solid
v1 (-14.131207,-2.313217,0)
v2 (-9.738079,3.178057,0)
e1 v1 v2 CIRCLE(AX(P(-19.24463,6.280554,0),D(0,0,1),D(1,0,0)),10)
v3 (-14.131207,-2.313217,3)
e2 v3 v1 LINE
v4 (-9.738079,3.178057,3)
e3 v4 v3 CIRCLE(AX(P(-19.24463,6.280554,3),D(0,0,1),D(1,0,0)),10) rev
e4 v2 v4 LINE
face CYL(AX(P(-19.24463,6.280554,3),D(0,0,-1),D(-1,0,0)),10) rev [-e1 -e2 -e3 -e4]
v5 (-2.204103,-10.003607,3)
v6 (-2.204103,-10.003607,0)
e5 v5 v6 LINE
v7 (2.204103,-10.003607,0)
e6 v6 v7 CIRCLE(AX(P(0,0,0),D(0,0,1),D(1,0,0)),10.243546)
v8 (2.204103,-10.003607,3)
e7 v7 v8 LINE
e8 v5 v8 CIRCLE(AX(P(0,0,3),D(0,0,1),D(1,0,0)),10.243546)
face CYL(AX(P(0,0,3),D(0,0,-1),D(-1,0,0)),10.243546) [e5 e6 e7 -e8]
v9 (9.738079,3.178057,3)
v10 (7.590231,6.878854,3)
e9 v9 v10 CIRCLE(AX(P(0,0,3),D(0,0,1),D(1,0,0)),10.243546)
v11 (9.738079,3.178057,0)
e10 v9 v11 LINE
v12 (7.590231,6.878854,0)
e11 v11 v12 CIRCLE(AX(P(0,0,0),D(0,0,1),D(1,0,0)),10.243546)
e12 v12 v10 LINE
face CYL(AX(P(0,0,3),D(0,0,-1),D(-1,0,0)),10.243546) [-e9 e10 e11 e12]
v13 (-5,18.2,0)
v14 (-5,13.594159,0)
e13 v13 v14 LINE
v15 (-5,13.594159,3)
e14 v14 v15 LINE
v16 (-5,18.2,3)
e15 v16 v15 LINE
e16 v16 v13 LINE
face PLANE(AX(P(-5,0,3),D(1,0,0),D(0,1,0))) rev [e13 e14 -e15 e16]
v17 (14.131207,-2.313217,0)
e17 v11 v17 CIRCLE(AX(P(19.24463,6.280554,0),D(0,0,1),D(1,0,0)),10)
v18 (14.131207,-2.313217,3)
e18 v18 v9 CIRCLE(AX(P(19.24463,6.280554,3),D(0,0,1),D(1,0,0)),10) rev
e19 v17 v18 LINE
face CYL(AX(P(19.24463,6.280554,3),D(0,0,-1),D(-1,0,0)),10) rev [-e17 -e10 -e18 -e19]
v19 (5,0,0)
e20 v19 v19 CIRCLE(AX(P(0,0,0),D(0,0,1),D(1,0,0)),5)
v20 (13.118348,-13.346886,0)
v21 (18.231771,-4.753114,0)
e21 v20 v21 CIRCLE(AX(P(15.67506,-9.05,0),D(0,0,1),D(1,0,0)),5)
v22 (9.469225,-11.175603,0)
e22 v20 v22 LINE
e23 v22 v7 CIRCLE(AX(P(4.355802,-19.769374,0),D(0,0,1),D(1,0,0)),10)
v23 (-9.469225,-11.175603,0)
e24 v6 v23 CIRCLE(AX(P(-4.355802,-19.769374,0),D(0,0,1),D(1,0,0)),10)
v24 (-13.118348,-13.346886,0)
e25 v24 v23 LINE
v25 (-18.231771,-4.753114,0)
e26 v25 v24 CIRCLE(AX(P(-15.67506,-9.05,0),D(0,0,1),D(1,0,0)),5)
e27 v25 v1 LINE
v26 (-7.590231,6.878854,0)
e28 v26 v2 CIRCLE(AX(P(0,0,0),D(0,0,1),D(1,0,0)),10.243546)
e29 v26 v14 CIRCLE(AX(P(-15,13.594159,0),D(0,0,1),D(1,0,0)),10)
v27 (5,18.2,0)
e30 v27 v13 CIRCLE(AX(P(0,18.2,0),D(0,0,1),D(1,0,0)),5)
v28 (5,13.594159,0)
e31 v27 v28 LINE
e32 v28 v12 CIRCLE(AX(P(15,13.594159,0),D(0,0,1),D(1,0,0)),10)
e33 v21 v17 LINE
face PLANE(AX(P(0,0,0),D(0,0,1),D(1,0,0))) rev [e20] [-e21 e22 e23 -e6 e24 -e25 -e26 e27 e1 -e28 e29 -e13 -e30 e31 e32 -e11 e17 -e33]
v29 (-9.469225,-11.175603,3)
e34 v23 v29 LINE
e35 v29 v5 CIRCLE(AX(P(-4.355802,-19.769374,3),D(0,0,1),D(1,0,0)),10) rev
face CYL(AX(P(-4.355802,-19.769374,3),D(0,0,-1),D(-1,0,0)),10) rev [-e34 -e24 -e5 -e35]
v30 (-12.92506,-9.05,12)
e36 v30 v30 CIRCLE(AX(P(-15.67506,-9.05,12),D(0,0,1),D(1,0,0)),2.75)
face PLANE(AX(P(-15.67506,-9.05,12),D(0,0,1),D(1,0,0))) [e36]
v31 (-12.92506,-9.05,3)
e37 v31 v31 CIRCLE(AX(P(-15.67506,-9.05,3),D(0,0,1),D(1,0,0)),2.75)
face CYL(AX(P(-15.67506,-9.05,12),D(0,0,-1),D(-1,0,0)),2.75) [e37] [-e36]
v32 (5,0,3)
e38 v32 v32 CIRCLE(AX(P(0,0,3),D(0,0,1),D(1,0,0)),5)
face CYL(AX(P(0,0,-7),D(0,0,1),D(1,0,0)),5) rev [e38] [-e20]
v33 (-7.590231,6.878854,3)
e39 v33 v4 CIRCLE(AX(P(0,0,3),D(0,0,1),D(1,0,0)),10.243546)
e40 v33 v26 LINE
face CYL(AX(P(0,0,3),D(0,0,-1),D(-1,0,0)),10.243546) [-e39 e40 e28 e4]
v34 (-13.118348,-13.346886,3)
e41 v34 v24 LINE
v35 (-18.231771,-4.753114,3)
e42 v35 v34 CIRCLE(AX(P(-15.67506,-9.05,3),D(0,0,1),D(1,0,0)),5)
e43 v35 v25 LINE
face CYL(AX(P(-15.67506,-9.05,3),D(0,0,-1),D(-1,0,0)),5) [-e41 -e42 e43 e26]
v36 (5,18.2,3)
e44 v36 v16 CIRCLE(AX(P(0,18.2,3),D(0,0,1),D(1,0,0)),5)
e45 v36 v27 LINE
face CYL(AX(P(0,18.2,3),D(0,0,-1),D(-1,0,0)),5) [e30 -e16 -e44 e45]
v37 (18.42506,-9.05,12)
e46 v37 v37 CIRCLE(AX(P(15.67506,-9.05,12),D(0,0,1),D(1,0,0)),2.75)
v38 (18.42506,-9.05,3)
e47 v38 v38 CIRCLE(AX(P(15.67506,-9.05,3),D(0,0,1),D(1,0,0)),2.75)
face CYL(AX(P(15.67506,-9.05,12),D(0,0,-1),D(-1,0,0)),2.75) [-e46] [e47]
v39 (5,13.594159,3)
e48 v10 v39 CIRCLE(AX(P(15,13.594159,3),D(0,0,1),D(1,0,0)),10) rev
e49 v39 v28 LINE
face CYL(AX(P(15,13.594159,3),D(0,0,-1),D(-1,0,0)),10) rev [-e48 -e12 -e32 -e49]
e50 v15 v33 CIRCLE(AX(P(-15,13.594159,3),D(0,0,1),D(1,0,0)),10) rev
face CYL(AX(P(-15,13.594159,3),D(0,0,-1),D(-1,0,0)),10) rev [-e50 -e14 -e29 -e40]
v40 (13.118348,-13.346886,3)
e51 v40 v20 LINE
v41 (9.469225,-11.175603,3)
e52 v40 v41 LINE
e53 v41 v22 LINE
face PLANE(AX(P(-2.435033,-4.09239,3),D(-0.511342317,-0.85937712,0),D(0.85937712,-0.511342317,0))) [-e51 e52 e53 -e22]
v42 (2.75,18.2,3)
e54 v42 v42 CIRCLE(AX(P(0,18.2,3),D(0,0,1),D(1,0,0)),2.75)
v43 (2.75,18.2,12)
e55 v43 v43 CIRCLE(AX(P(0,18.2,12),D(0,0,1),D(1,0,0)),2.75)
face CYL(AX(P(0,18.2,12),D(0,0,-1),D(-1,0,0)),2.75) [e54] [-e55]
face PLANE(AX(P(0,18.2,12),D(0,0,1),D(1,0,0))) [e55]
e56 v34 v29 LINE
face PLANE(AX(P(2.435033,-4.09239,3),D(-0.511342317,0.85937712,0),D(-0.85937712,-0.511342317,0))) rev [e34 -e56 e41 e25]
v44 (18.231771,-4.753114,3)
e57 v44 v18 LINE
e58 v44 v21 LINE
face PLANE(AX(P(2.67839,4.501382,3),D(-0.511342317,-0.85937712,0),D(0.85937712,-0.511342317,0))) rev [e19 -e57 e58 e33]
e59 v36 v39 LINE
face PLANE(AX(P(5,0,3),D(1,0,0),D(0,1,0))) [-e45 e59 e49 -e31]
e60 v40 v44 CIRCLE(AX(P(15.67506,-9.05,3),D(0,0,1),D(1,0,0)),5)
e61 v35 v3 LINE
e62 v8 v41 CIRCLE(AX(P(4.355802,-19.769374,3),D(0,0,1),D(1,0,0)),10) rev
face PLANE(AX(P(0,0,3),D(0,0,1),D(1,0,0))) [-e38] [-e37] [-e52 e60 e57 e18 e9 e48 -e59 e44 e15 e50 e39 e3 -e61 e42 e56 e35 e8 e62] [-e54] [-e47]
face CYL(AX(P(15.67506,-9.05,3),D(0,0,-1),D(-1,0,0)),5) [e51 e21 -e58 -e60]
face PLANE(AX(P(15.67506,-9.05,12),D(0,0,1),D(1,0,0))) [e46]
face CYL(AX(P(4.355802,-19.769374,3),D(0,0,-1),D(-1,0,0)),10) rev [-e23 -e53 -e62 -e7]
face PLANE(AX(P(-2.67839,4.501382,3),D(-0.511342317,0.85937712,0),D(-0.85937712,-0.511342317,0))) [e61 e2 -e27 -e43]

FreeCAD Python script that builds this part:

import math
import FreeCAD as App
import Part
import Sketcher
from FreeCAD import Vector


def edges_at(feature, points):
    """Names of the edges that pass closest to the given points."""
    edges = feature.Shape.Edges
    near = lambda p: min(range(len(edges)), key=lambda i: edges[i].distToShape(Part.Vertex(*p))[0])
    return sorted({f"Edge{near(p) + 1}" for p in points})

doc = App.newDocument("Part")
params = doc.addObject("Spreadsheet::Sheet", "Params")
for row, (alias, value) in enumerate([
    ("sketch1_radius", "5 mm"),
    ("pad1_length", "3 mm"),
    ("sketch2_diameter", "10 mm"),
    ("pocket1_length", "10 mm"),
    ("fillet_radius", "10 mm"),
    ("sketch3_diameter", "5.5 mm"),
    ("pad2_length", "9 mm"),
], start=1):
    params.set(f"A{row}", alias)
    params.set(f"B{row}", "=" + value)
    params.setAlias(f"B{row}", alias)

body = doc.addObject("PartDesign::Body", "Body")

# Sketch on XY plane
sketch1 = doc.addObject("Sketcher::SketchObject", "Sketch")
body.addObject(sketch1)
sketch1.AttachmentSupport = (doc.XY_Plane, [""])
sketch1.MapMode = "FlatFace"
sketch1.addGeometry([
    Part.LineSegment(Vector(-13.118348, -13.346886, 0), Vector(-5.358962, -8.729934, 0)),  # 0
    Part.ArcOfCircle(Part.Circle(Vector(0, 0, 0), Vector(0, 0, 1), 10.243546), math.radians(-121.544123), math.radians(-58.455877)),  # 1
    Part.LineSegment(Vector(5.358962, -8.729934, 0), Vector(13.118348, -13.346886, 0)),  # 2
    Part.ArcOfCircle(Part.Circle(Vector(15.67506, -9.05, 0), Vector(0, 0, 1), 5), math.radians(-120.753282), math.radians(59.246718)),  # 3
    Part.LineSegment(Vector(18.231771, -4.753114, 0), Vector(10.243546, 0, 0)),  # 4
    Part.ArcOfCircle(Part.Circle(Vector(0, 0, 0), Vector(0, 0, 1), 10.243546), math.radians(0), math.radians(60.783421)),  # 5
    Part.LineSegment(Vector(5, 8.940371, 0), Vector(5, 18.2, 0)),  # 6
    Part.ArcOfCircle(Part.Circle(Vector(0, 18.2, 0), Vector(0, 0, 1), 5), math.radians(0), math.radians(180)),  # 7
    Part.LineSegment(Vector(-5, 18.2, 0), Vector(-5, 8.940371, 0)),  # 8
    Part.ArcOfCircle(Part.Circle(Vector(0, 0, 0), Vector(0, 0, 1), 10.243546), math.radians(119.216579), math.radians(180)),  # 9
    Part.LineSegment(Vector(-10.243546, 0, 0), Vector(-18.231771, -4.753114, 0)),  # 10
    Part.ArcOfCircle(Part.Circle(Vector(-15.67506, -9.05, 0), Vector(0, 0, 1), 5), math.radians(120.753282), math.radians(300.753282)),  # 11
], False)
sketch1.addConstraint([
    Sketcher.Constraint("Coincident", 0, 2, 1, 1),
    Sketcher.Constraint("Coincident", 1, 2, 2, 1),
    Sketcher.Constraint("Tangent", 2, 2, 3, 1),
    Sketcher.Constraint("Tangent", 3, 2, 4, 1),
    Sketcher.Constraint("Coincident", 4, 2, 5, 1),
    Sketcher.Constraint("Coincident", 5, 2, 6, 1),
    Sketcher.Constraint("Tangent", 6, 2, 7, 1),
    Sketcher.Constraint("Tangent", 7, 2, 8, 1),
    Sketcher.Constraint("Coincident", 8, 2, 9, 1),
    Sketcher.Constraint("Coincident", 9, 2, 10, 1),
    Sketcher.Constraint("Tangent", 10, 2, 11, 1),
    Sketcher.Constraint("Tangent", 11, 2, 0, 1),
    Sketcher.Constraint("Vertical", 6),
    Sketcher.Constraint("Vertical", 8),
    Sketcher.Constraint("Coincident", 1, 3, -1, 1),
    Sketcher.Constraint("Coincident", 5, 3, -1, 1),
    Sketcher.Constraint("Coincident", 9, 3, -1, 1),
    Sketcher.Constraint("Equal", 1, 5),
    Sketcher.Constraint("Equal", 3, 7),
    Sketcher.Constraint("Equal", 5, 9),
    Sketcher.Constraint("Equal", 7, 11),
    Sketcher.Constraint("Symmetric", 3, 3, 11, 3, -2),
    Sketcher.Constraint("PointOnObject", 7, 3, -2),
    Sketcher.Constraint("PointOnObject", 4, 2, -1),
    Sketcher.Constraint("PointOnObject", 9, 2, -1),
    Sketcher.Constraint("Parallel", 2, 4),
    Sketcher.Constraint("Parallel", 0, 10),
    Sketcher.Constraint("Radius", 3, 5.0),
    Sketcher.Constraint("DistanceY", -1, 1, 7, 3, 18.2),
    Sketcher.Constraint("DistanceY", 3, 3, -1, 1, 9.05),
    Sketcher.Constraint("Radius", 1, 10.243546),
    Sketcher.Constraint("Distance", 0, 9.029081),
])
sketch1.setExpression("Constraints[27]", "Params.sketch1_radius")
pad1 = doc.addObject("PartDesign::Pad", "Pad")
body.addObject(pad1)
pad1.Profile = sketch1
pad1.setExpression("Length", "Params.pad1_length")

# Sketch on XY plane
sketch2 = doc.addObject("Sketcher::SketchObject", "Sketch001")
body.addObject(sketch2)
sketch2.AttachmentSupport = (doc.XY_Plane, [""])
sketch2.MapMode = "FlatFace"
sketch2.AttachmentOffset = App.Placement(Vector(0, 0, 3), App.Rotation())
sketch2.addGeometry(Part.Circle(Vector(0, 0, 0), Vector(0, 0, 1), 5), False)
sketch2.addConstraint([
    Sketcher.Constraint("Coincident", 0, 3, -1, 1),
    Sketcher.Constraint("Diameter", 0, 10.0),
])
sketch2.setExpression("Constraints[1]", "Params.sketch2_diameter")
pocket1 = doc.addObject("PartDesign::Pocket", "Pocket")
body.addObject(pocket1)
pocket1.Profile = sketch2
pocket1.setExpression("Length", "Params.pocket1_length")
doc.recompute()

fillet = doc.addObject("PartDesign::Fillet", "Fillet")
body.addObject(fillet)
fillet.Base = (pocket1, edges_at(pocket1, [
    (-10.244, 0, 1.5),
    (-5, 8.94, 1.5),
    (5, 8.94, 1.5),
    (10.244, 0, 1.5),
    (5.359, -8.73, 1.5),
    (-5.359, -8.73, 1.5),
]))
fillet.setExpression("Radius", "Params.fillet_radius")

# Sketch on XY plane
sketch3 = doc.addObject("Sketcher::SketchObject", "Sketch002")
body.addObject(sketch3)
sketch3.AttachmentSupport = (doc.XY_Plane, [""])
sketch3.MapMode = "FlatFace"
sketch3.AttachmentOffset = App.Placement(Vector(0, 0, 3), App.Rotation())
sketch3.addGeometry([
    Part.Circle(Vector(0, 18.2, 0), Vector(0, 0, 1), 2.75),
    Part.Circle(Vector(15.67506, -9.05, 0), Vector(0, 0, 1), 2.75),
    Part.Circle(Vector(-15.67506, -9.05, 0), Vector(0, 0, 1), 2.75),
], False)
sketch3.addConstraint([
    Sketcher.Constraint("Equal", 0, 1),
    Sketcher.Constraint("Equal", 1, 2),
    Sketcher.Constraint("Symmetric", 1, 3, 2, 3, -2),
    Sketcher.Constraint("PointOnObject", 0, 3, -2),
    Sketcher.Constraint("Diameter", 0, 5.5),
    Sketcher.Constraint("DistanceY", -1, 1, 0, 3, 18.2),
    Sketcher.Constraint("DistanceY", 1, 3, -1, 1, 9.05),
    Sketcher.Constraint("DistanceX", -1, 1, 1, 3, 15.67506),
])
sketch3.setExpression("Constraints[4]", "Params.sketch3_diameter")
pad2 = doc.addObject("PartDesign::Pad", "Pad001")
body.addObject(pad2)
pad2.Profile = sketch3
pad2.setExpression("Length", "Params.pad2_length")

doc.recompute()
